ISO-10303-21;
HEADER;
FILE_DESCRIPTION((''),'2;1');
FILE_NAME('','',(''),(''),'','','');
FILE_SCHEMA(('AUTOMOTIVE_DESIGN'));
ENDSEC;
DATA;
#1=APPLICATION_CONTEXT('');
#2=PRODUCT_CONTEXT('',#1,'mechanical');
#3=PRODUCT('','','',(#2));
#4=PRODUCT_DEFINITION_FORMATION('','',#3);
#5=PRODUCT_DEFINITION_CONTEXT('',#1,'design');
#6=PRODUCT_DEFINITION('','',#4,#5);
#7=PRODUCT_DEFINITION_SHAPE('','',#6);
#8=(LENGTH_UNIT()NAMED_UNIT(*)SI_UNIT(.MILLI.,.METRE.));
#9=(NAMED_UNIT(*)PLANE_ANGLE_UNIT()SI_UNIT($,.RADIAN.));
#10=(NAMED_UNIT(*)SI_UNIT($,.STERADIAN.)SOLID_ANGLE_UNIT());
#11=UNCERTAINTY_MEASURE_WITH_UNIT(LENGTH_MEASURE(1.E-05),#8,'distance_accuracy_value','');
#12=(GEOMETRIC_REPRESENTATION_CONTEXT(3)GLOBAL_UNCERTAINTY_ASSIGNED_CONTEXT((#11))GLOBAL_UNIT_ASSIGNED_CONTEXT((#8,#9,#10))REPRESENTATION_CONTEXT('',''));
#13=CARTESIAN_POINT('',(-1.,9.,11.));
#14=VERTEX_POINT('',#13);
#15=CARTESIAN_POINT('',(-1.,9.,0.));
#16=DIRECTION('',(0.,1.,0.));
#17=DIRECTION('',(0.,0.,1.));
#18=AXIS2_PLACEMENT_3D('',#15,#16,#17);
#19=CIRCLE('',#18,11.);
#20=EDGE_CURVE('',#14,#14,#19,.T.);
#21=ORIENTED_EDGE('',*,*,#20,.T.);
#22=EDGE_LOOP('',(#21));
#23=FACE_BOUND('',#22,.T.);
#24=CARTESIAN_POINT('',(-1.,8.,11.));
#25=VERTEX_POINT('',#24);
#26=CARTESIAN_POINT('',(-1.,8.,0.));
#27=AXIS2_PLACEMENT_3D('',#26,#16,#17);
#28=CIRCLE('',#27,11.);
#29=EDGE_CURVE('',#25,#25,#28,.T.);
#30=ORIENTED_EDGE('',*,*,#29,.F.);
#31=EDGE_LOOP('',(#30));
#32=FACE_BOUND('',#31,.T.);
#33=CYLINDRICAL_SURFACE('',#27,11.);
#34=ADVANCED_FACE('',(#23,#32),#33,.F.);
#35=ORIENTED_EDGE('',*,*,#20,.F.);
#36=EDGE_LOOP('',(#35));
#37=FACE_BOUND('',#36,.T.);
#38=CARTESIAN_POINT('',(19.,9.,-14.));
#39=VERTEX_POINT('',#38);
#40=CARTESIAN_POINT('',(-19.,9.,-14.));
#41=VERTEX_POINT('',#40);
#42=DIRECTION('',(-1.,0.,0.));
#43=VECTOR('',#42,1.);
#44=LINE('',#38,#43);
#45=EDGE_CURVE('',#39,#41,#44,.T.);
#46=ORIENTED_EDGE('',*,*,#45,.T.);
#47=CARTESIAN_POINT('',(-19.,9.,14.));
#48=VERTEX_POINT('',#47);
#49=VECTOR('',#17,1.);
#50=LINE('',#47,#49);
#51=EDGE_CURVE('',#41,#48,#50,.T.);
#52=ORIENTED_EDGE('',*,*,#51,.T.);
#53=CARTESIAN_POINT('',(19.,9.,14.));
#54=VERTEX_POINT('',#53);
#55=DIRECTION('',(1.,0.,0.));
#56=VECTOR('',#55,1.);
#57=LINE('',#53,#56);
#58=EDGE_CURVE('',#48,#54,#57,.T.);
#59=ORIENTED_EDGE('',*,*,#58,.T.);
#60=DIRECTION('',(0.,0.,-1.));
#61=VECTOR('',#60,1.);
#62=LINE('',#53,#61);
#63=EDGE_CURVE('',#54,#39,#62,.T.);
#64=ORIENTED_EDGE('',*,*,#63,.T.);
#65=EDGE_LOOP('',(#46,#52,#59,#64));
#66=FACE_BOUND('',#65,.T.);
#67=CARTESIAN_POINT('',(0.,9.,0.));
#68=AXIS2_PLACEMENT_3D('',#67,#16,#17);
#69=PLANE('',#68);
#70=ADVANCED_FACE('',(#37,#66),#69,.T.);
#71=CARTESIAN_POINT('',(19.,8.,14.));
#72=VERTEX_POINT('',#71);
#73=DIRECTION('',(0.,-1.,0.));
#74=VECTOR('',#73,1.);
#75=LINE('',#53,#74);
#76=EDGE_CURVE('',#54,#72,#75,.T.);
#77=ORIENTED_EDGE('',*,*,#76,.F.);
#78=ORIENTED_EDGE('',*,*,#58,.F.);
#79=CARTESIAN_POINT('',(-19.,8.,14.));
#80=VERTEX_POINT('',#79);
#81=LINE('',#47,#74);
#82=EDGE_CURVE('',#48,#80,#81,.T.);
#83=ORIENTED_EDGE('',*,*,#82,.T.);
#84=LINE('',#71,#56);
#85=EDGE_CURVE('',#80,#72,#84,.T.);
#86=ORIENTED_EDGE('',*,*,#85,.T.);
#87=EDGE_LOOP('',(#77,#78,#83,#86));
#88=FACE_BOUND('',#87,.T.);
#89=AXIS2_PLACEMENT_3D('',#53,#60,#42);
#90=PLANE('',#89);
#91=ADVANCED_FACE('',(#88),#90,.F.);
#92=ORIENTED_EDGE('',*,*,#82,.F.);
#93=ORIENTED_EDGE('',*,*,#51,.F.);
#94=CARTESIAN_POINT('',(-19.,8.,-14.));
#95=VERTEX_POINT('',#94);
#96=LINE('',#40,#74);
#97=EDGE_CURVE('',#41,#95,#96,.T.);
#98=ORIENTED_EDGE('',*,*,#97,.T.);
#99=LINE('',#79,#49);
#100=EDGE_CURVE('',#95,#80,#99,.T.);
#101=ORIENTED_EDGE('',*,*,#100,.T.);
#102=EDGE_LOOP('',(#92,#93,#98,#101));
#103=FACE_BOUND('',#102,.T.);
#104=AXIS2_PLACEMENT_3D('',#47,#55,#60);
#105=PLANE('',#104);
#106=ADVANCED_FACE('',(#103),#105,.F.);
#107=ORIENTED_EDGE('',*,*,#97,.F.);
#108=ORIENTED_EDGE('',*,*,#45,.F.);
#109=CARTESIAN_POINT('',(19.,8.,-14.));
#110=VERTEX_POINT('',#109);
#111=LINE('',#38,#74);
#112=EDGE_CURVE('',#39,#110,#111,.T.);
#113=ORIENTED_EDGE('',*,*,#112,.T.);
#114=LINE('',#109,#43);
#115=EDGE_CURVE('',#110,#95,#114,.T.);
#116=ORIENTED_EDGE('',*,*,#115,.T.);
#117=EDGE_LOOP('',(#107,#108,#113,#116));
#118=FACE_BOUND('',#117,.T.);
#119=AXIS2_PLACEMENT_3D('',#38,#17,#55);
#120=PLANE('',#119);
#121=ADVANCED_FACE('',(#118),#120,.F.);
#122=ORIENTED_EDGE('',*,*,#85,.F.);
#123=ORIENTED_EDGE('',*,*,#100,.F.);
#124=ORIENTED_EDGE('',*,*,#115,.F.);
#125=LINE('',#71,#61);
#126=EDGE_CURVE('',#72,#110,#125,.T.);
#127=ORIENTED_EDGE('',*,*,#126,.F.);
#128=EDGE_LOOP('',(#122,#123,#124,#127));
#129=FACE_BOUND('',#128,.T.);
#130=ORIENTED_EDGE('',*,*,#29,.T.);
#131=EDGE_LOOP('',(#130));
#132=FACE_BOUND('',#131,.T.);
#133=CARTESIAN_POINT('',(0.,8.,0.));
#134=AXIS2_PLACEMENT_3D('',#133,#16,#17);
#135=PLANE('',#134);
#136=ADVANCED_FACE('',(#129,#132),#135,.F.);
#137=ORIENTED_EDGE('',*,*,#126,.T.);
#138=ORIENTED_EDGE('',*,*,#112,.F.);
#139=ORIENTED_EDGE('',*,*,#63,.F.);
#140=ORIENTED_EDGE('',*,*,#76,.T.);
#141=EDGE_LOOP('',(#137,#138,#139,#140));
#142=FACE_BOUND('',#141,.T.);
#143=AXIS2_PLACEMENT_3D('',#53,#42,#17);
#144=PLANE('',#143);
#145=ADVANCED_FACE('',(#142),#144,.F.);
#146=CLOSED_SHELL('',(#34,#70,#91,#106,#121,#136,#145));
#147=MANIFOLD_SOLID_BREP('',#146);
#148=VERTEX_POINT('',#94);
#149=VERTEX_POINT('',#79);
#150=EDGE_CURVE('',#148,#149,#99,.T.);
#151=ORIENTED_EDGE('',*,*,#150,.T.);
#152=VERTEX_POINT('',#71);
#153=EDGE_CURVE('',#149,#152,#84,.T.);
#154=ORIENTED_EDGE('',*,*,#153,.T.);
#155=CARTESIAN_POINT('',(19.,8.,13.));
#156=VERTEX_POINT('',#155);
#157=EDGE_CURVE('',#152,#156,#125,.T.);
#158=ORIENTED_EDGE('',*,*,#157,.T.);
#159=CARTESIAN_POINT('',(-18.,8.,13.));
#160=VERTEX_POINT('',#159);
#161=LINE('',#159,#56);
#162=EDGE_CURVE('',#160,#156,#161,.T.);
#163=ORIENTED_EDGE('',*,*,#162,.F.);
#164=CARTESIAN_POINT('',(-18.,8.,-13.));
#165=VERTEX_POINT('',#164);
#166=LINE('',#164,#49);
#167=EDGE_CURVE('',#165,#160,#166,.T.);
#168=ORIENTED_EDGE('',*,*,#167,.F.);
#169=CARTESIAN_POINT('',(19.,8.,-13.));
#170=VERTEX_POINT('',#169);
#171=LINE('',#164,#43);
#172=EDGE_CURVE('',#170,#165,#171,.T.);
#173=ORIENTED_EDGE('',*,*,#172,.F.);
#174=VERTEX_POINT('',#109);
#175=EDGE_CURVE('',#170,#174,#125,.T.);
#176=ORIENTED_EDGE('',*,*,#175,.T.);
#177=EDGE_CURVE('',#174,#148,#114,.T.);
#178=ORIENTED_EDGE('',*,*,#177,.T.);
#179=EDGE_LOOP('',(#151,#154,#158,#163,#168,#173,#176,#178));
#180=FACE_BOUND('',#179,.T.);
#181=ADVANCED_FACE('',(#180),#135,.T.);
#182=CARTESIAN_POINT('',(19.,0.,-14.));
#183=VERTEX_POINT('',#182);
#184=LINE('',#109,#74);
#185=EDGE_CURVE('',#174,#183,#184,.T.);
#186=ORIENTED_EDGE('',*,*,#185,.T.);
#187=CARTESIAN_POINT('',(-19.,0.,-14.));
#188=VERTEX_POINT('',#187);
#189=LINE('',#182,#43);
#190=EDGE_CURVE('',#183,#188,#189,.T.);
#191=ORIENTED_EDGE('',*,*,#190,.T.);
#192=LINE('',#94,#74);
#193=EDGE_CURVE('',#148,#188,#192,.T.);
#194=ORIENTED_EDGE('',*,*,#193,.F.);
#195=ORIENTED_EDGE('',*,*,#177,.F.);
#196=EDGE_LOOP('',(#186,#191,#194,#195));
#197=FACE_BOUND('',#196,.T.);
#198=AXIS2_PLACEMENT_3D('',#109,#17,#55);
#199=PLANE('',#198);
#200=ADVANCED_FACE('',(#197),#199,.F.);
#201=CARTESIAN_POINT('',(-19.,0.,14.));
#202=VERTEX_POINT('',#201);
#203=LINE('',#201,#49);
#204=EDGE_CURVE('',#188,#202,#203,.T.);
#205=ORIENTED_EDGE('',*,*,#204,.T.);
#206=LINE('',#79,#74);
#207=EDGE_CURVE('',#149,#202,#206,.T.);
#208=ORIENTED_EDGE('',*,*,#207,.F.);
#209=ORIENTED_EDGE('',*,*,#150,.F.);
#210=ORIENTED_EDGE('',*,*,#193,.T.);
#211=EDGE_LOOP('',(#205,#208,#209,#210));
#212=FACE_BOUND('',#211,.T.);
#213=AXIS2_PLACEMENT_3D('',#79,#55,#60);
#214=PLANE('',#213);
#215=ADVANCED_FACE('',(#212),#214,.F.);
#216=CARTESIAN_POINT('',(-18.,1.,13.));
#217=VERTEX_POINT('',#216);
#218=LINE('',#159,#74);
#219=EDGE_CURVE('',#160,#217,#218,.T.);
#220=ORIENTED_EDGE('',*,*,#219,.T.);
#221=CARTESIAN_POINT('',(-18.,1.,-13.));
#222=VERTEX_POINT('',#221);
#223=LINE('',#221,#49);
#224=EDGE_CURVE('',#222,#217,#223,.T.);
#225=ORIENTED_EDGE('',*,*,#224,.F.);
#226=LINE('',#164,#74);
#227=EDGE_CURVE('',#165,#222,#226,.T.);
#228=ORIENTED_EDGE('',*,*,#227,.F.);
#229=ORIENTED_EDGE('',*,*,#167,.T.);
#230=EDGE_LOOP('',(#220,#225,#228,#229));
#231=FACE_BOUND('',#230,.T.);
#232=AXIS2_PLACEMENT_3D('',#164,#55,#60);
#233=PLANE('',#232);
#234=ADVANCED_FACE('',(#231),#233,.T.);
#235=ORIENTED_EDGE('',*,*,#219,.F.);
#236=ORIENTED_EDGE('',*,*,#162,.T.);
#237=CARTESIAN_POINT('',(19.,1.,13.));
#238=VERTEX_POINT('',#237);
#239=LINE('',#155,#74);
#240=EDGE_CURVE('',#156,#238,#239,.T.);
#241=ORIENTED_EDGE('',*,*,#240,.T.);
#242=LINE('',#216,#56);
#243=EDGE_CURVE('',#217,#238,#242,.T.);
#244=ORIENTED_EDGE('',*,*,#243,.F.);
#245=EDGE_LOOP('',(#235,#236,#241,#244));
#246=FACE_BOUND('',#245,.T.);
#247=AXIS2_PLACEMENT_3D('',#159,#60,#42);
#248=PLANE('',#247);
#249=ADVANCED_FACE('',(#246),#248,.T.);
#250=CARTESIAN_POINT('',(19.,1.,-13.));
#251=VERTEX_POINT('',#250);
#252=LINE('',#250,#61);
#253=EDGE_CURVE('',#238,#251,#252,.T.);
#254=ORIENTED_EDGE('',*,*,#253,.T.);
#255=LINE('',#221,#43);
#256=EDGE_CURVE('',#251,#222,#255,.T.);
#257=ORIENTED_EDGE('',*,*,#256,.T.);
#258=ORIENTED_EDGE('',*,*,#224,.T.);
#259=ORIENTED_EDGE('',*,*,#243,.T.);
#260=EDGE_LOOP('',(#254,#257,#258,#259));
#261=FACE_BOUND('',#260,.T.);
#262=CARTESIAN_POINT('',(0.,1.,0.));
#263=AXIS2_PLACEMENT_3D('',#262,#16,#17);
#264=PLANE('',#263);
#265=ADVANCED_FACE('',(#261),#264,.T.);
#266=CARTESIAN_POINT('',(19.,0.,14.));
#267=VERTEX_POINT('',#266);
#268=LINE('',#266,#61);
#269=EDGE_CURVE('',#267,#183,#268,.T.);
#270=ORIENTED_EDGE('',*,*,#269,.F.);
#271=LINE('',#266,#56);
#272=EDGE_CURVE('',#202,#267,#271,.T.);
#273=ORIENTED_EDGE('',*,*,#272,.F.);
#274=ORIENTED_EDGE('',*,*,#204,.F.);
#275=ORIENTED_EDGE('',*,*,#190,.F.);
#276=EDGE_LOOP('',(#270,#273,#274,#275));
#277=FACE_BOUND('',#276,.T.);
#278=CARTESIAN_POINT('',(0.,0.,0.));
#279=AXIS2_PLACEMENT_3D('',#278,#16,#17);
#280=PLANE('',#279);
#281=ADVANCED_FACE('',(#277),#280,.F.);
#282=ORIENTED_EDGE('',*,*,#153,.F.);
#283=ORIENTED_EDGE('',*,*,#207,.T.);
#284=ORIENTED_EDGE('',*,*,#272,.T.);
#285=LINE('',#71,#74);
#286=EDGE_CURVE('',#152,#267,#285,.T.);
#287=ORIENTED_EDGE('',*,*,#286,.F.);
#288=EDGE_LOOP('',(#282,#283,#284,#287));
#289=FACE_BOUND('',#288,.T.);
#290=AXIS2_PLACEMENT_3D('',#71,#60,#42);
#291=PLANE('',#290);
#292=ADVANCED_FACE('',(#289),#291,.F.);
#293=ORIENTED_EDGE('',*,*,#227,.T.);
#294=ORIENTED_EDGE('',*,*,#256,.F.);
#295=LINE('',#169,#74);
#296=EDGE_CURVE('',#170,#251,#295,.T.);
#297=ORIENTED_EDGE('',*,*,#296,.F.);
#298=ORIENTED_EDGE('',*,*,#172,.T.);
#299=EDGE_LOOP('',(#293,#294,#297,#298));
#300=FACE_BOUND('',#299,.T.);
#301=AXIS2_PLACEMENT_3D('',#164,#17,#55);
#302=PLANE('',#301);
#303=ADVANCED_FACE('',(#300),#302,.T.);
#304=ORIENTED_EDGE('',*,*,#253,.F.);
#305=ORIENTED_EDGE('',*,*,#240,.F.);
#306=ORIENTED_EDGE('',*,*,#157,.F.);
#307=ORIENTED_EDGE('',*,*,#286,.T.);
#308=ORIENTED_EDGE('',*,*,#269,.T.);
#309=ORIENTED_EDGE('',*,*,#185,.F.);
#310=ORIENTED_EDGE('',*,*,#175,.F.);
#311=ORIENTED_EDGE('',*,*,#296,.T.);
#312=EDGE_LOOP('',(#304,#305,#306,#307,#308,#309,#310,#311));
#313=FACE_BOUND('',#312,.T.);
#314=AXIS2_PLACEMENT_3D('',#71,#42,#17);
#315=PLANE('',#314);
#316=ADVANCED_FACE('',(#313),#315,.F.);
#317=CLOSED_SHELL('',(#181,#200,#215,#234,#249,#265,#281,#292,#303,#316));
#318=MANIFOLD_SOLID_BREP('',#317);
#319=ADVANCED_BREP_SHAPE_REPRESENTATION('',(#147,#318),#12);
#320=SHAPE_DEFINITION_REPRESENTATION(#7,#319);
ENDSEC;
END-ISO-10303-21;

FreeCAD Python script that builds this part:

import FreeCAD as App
import Part
import Sketcher

doc = App.newDocument("Part")
body = doc.addObject("PartDesign::Body", "Body")

# Sketch on XZ plane
sketch1 = body.newObject("Sketcher::SketchObject", "Sketch")
sketch1.AttachmentSupport = (doc.getObject("XZ_Plane"), [""])
sketch1.MapMode = "FlatFace"
sketch1.addGeometry(Part.LineSegment(App.Vector(-19, -14, 0), App.Vector(-19, 14, 0)), False)
sketch1.addGeometry(Part.LineSegment(App.Vector(-19, 14, 0), App.Vector(19, 14, 0)), False)
sketch1.addGeometry(Part.LineSegment(App.Vector(19, 14, 0), App.Vector(19, -14, 0)), False)
sketch1.addGeometry(Part.LineSegment(App.Vector(19, -14, 0), App.Vector(-19, -14, 0)), False)
sketch1.addConstraint(Sketcher.Constraint("Coincident", 0, 2, 1, 1))
sketch1.addConstraint(Sketcher.Constraint("Coincident", 1, 2, 2, 1))
sketch1.addConstraint(Sketcher.Constraint("Coincident", 2, 2, 3, 1))
sketch1.addConstraint(Sketcher.Constraint("Coincident", 3, 2, 0, 1))
sketch1.addConstraint(Sketcher.Constraint("Vertical", 0))
sketch1.addConstraint(Sketcher.Constraint("Horizontal", 1))
sketch1.addConstraint(Sketcher.Constraint("Vertical", 2))
sketch1.addConstraint(Sketcher.Constraint("Horizontal", 3))
sketch1.addConstraint(Sketcher.Constraint("Symmetric", 0, 2, 2, 2, -1, 1))
sketch1.addConstraint(Sketcher.Constraint("DistanceX", 1, 1, 1, 2, 38.0))
sketch1.addConstraint(Sketcher.Constraint("DistanceY", 0, 1, 0, 2, 28.0))
pad1 = body.newObject("PartDesign::Pad", "Pad")
pad1.Profile = sketch1
pad1.Length = 8
pad1.Reversed = True

# Sketch on XZ plane
sketch2 = body.newObject("Sketcher::SketchObject", "Sketch001")
sketch2.AttachmentSupport = (doc.getObject("XZ_Plane"), [""])
sketch2.MapMode = "FlatFace"
sketch2.AttachmentOffset = App.Placement(App.Vector(0, 0, -1), App.Rotation())
sketch2.addGeometry(Part.LineSegment(App.Vector(-18, -13, 0), App.Vector(-18, 13, 0)), False)
sketch2.addGeometry(Part.LineSegment(App.Vector(-18, 13, 0), App.Vector(19, 13, 0)), False)
sketch2.addGeometry(Part.LineSegment(App.Vector(19, 13, 0), App.Vector(19, -13, 0)), False)
sketch2.addGeometry(Part.LineSegment(App.Vector(19, -13, 0), App.Vector(-18, -13, 0)), False)
sketch2.addConstraint(Sketcher.Constraint("Coincident", 0, 2, 1, 1))
sketch2.addConstraint(Sketcher.Constraint("Coincident", 1, 2, 2, 1))
sketch2.addConstraint(Sketcher.Constraint("Coincident", 2, 2, 3, 1))
sketch2.addConstraint(Sketcher.Constraint("Coincident", 3, 2, 0, 1))
sketch2.addConstraint(Sketcher.Constraint("Vertical", 0))
sketch2.addConstraint(Sketcher.Constraint("Horizontal", 1))
sketch2.addConstraint(Sketcher.Constraint("Vertical", 2))
sketch2.addConstraint(Sketcher.Constraint("Horizontal", 3))
sketch2.addConstraint(Sketcher.Constraint("DistanceX", 1, 1, 1, 2, 37.0))
sketch2.addConstraint(Sketcher.Constraint("DistanceY", 0, 1, 0, 2, 26.0))
sketch2.addConstraint(Sketcher.Constraint("DistanceX", 0, 2, -1, 1, 18.0))
sketch2.addConstraint(Sketcher.Constraint("DistanceY", -1, 1, 0, 2, 13.0))
pocket1 = body.newObject("PartDesign::Pocket", "Pocket")
pocket1.Profile = sketch2
pocket1.Length = 7
body2 = doc.addObject("PartDesign::Body", "Body001")

# Sketch on XZ plane
sketch3 = body2.newObject("Sketcher::SketchObject", "Sketch002")
sketch3.AttachmentSupport = (doc.getObject("XZ_Plane001"), [""])
sketch3.MapMode = "FlatFace"
sketch3.AttachmentOffset = App.Placement(App.Vector(0, 0, -8), App.Rotation())
sketch3.addGeometry(Part.LineSegment(App.Vector(-19, -14, 0), App.Vector(-19, 14, 0)), False)
sketch3.addGeometry(Part.LineSegment(App.Vector(-19, 14, 0), App.Vector(19, 14, 0)), False)
sketch3.addGeometry(Part.LineSegment(App.Vector(19, 14, 0), App.Vector(19, -14, 0)), False)
sketch3.addGeometry(Part.LineSegment(App.Vector(19, -14, 0), App.Vector(-19, -14, 0)), False)
sketch3.addConstraint(Sketcher.Constraint("Coincident", 0, 2, 1, 1))
sketch3.addConstraint(Sketcher.Constraint("Coincident", 1, 2, 2, 1))
sketch3.addConstraint(Sketcher.Constraint("Coincident", 2, 2, 3, 1))
sketch3.addConstraint(Sketcher.Constraint("Coincident", 3, 2, 0, 1))
sketch3.addConstraint(Sketcher.Constraint("Vertical", 0))
sketch3.addConstraint(Sketcher.Constraint("Horizontal", 1))
sketch3.addConstraint(Sketcher.Constraint("Vertical", 2))
sketch3.addConstraint(Sketcher.Constraint("Horizontal", 3))
sketch3.addConstraint(Sketcher.Constraint("Symmetric", 0, 2, 2, 2, -1, 1))
sketch3.addConstraint(Sketcher.Constraint("DistanceX", 1, 1, 1, 2, 38.0))
sketch3.addConstraint(Sketcher.Constraint("DistanceY", 0, 1, 0, 2, 28.0))
pad2 = body2.newObject("PartDesign::Pad", "Pad001")
pad2.Profile = sketch3
pad2.Length = 1
pad2.Reversed = True

# Sketch on XZ plane
sketch4 = body2.newObject("Sketcher::SketchObject", "Sketch003")
sketch4.AttachmentSupport = (doc.getObject("XZ_Plane001"), [""])
sketch4.MapMode = "FlatFace"
sketch4.AttachmentOffset = App.Placement(App.Vector(0, 0, -9), App.Rotation())
sketch4.addGeometry(Part.Circle(App.Vector(-1, 0, 0), App.Vector(0, 0, 1), 11), False)
sketch4.addConstraint(Sketcher.Constraint("PointOnObject", 0, 3, -1))
sketch4.addConstraint(Sketcher.Constraint("Diameter", 0, 22.0))
sketch4.addConstraint(Sketcher.Constraint("DistanceX", 0, 3, -1, 1, 1.0))
pocket2 = body2.newObject("PartDesign::Pocket", "Pocket001")
pocket2.Profile = sketch4
pocket2.Length = 1
pocket2.Reversed = True

doc.recompute()
